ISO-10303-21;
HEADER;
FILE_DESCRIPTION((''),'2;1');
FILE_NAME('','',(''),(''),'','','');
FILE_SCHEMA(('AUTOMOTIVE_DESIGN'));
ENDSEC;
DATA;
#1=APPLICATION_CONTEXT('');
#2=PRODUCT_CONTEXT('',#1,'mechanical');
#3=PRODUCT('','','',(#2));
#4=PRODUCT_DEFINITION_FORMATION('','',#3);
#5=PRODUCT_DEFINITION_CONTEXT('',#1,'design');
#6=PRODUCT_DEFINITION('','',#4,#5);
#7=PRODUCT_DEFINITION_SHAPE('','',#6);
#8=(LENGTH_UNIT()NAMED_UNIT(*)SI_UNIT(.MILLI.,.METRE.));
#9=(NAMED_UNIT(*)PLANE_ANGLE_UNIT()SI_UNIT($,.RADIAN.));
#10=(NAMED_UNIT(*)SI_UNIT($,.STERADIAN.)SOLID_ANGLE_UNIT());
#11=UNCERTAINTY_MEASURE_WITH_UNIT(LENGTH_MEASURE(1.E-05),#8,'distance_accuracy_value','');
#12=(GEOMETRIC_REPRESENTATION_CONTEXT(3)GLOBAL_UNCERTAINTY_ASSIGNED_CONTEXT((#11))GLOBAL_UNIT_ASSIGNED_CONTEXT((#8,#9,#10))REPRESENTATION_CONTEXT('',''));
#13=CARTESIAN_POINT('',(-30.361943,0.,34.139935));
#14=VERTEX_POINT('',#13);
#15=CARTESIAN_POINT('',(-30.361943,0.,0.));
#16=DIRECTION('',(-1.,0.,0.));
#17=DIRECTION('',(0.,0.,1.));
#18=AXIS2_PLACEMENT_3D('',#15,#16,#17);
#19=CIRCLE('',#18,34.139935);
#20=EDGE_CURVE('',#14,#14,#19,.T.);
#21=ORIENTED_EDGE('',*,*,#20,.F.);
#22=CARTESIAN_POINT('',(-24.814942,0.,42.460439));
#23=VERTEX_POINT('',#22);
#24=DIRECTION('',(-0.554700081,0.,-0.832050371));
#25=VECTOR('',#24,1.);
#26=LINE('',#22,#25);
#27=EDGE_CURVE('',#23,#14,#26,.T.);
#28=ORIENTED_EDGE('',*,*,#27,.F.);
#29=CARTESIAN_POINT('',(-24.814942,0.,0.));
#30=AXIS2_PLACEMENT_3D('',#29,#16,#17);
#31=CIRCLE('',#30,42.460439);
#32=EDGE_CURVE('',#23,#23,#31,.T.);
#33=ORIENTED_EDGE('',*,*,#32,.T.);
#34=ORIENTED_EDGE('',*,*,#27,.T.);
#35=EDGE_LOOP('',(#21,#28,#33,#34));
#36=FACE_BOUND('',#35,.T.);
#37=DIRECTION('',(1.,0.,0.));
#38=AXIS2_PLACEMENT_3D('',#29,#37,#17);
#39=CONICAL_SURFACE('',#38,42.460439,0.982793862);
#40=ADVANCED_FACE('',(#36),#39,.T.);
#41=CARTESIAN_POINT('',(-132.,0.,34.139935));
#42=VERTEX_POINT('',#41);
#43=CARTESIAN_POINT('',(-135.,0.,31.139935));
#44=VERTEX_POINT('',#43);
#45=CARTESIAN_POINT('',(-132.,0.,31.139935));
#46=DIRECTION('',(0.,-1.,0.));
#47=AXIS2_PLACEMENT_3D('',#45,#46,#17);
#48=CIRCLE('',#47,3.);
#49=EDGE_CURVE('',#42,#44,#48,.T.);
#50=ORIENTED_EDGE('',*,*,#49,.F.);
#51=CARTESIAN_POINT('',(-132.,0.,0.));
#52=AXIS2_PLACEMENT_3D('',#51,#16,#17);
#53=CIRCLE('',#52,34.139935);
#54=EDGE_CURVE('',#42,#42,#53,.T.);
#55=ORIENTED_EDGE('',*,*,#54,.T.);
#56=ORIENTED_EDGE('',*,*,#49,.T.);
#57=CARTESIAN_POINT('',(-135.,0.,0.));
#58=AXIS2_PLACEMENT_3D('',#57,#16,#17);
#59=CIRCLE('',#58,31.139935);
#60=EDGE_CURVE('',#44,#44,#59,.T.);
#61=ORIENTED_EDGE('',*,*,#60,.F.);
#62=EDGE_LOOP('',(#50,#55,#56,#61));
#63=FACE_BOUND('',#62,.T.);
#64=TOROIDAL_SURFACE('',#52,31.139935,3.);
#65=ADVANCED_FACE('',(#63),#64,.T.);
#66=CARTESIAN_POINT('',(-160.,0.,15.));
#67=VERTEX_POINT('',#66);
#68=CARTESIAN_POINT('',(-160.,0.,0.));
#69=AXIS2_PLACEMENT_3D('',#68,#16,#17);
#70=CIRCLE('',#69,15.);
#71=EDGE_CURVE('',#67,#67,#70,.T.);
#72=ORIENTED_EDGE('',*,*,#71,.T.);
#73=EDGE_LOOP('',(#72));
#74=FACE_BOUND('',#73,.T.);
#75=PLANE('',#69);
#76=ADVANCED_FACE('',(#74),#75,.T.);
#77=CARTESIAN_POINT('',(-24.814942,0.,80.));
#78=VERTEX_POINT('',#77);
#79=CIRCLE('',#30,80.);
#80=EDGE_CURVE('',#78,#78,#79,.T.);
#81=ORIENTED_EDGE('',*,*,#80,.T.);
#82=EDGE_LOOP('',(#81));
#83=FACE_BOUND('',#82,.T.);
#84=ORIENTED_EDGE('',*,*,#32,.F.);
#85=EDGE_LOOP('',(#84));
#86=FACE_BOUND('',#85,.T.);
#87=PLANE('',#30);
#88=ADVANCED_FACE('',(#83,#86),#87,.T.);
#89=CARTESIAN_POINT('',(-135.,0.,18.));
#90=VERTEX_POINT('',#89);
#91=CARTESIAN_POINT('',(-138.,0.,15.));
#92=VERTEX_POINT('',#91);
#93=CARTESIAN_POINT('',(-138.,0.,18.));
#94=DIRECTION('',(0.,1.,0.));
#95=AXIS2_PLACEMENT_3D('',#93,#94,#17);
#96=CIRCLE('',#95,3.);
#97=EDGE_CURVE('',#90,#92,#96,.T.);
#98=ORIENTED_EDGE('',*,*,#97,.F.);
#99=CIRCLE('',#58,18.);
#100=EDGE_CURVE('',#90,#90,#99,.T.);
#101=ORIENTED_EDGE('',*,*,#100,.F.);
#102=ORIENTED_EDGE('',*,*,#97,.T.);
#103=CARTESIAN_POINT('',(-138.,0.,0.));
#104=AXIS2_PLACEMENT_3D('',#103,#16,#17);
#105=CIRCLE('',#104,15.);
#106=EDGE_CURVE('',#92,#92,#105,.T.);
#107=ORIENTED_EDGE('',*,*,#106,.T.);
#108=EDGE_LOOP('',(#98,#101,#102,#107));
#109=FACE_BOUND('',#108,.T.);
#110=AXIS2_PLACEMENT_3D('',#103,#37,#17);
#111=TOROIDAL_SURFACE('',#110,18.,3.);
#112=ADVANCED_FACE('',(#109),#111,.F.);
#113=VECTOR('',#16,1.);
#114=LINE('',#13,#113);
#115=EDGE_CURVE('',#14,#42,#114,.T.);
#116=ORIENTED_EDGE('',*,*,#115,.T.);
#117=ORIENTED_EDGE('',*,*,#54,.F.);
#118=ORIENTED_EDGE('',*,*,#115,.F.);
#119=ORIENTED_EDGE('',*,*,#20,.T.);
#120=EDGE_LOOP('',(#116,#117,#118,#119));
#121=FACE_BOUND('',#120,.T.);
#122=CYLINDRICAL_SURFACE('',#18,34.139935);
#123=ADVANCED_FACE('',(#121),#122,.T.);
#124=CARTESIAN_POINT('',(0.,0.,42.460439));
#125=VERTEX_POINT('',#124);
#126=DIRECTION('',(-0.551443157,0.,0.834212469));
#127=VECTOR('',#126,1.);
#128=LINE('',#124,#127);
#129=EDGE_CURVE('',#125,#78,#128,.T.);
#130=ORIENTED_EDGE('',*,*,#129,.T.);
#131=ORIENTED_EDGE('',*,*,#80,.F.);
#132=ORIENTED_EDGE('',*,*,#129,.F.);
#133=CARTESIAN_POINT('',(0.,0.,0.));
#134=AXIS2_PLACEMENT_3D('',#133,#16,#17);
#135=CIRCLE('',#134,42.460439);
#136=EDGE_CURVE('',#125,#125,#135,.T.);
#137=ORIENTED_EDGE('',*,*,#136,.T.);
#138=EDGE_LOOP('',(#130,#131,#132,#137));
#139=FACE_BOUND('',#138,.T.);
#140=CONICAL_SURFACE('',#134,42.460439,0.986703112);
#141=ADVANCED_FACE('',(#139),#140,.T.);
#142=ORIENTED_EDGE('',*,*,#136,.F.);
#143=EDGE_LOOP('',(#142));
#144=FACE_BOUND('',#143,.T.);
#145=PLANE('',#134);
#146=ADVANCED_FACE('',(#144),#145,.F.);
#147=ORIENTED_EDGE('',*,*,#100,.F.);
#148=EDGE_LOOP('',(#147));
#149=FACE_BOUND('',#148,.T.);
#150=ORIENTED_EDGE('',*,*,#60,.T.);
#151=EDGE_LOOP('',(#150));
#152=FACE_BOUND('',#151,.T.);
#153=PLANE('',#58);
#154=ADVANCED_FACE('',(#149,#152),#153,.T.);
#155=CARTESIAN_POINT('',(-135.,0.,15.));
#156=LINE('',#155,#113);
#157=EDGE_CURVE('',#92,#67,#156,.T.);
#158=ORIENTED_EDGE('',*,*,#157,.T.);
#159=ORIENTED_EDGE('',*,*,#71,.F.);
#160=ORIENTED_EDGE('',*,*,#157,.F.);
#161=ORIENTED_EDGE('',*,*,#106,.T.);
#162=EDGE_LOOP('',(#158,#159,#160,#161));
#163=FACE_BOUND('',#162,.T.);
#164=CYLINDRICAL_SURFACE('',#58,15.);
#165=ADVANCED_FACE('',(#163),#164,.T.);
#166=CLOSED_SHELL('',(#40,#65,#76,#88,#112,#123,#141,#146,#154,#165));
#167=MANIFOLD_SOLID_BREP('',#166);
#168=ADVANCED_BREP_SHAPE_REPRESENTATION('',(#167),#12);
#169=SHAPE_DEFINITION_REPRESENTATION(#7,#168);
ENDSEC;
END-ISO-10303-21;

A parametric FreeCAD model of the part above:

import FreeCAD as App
import Part
import Sketcher


def edges_at(feature, points):
    """Names of the edges that pass closest to the given points."""
    edges = feature.Shape.Edges
    near = lambda p: min(range(len(edges)), key=lambda i: edges[i].distToShape(Part.Vertex(*p))[0])
    return sorted({f"Edge{near(p) + 1}" for p in points})

doc = App.newDocument("Part")
params = doc.addObject("Spreadsheet::Sheet", "Params")
for row, (alias, value) in enumerate([
    ("sketch1_width", "160 mm"),
    ("sketch1_width2", "25 mm"),
    ("sketch1_height", "15 mm"),
    ("sketch1_length", "45 mm"),
    ("sketch1_length2", "10 mm"),
    ("revolution_angle", "360 deg"),
    ("fillet_radius", "3 mm"),
], start=1):
    params.set(f"A{row}", alias)
    params.set(f"B{row}", "=" + value)
    params.setAlias(f"B{row}", alias)

body = doc.addObject("PartDesign::Body", "Body")

# Sketch on XZ plane
sketch1 = doc.addObject("Sketcher::SketchObject", "Sketch")
body.addObject(sketch1)
sketch1.AttachmentSupport = (doc.XZ_Plane, [""])
sketch1.MapMode = "FlatFace"
sketch1.addGeometry([
    Part.LineSegment(App.Vector(-160, 15, 0), App.Vector(-160, 0, 0)),  # 0
    Part.LineSegment(App.Vector(-160, 0, 0), App.Vector(0, 0, 0)),  # 1
    Part.LineSegment(App.Vector(0, 0, 0), App.Vector(0, 42, 0)),  # 2
    Part.LineSegment(App.Vector(0, 42, 0), App.Vector(-25, 80, 0)),  # 3
    Part.LineSegment(App.Vector(-25, 80, 0), App.Vector(-25, 42, 0)),  # 4
    Part.LineSegment(App.Vector(-25, 42, 0), App.Vector(-30, 34, 0)),  # 5
    Part.LineSegment(App.Vector(-30, 34, 0), App.Vector(-135, 34, 0)),  # 6
    Part.LineSegment(App.Vector(-135, 34, 0), App.Vector(-135, 15, 0)),  # 7
    Part.LineSegment(App.Vector(-135, 15, 0), App.Vector(-160, 15, 0)),  # 8
], False)
sketch1.addConstraint([
    Sketcher.Constraint("Coincident", 0, 2, 1, 1),
    Sketcher.Constraint("Coincident", 1, 2, 2, 1),
    Sketcher.Constraint("Coincident", 2, 2, 3, 1),
    Sketcher.Constraint("Coincident", 3, 2, 4, 1),
    Sketcher.Constraint("Coincident", 4, 2, 5, 1),
    Sketcher.Constraint("Coincident", 5, 2, 6, 1),
    Sketcher.Constraint("Coincident", 6, 2, 7, 1),
    Sketcher.Constraint("Coincident", 7, 2, 8, 1),
    Sketcher.Constraint("Coincident", 8, 2, 0, 1),
    Sketcher.Constraint("Vertical", 0),
    Sketcher.Constraint("Horizontal", 1),
    Sketcher.Constraint("Vertical", 2),
    Sketcher.Constraint("Vertical", 4),
    Sketcher.Constraint("Horizontal", 6),
    Sketcher.Constraint("Vertical", 7),
    Sketcher.Constraint("Horizontal", 8),
    Sketcher.Constraint("Coincident", 1, 2, -1, 1),
    Sketcher.Constraint("Horizontal", 2, 2, 4, 2),
    Sketcher.Constraint("DistanceX", 1, 1, 1, 2, 160.0),
    Sketcher.Constraint("DistanceX", 8, 2, 8, 1, 25.0),
    Sketcher.Constraint("DistanceY", 0, 2, 0, 1, 15.0),
    Sketcher.Constraint("Distance", 3, 45.0),
    Sketcher.Constraint("Distance", 5, 10.0),
    Sketcher.Constraint("DistanceY", -1, 1, 3, 2, 80.0),
    Sketcher.Constraint("DistanceX", 5, 2, 4, 2, 5.547001),
    Sketcher.Constraint("DistanceY", 2, 1, 2, 2, 42.460439),
])
sketch1.setExpression("Constraints[18]", "Params.sketch1_width")
sketch1.setExpression("Constraints[19]", "Params.sketch1_width2")
sketch1.setExpression("Constraints[20]", "Params.sketch1_height")
sketch1.setExpression("Constraints[21]", "Params.sketch1_length")
sketch1.setExpression("Constraints[22]", "Params.sketch1_length2")
revolution = doc.addObject("PartDesign::Revolution", "Revolution")
body.addObject(revolution)
revolution.Profile = sketch1
revolution.ReferenceAxis = (sketch1, ["H_Axis"])
revolution.setExpression("Angle", "Params.revolution_angle")
doc.recompute()

fillet = doc.addObject("PartDesign::Fillet", "Fillet")
body.addObject(fillet)
fillet.Base = (revolution, edges_at(revolution, [(-135, 0, -34.14), (-135, 0, -15)]))
fillet.setExpression("Radius", "Params.fillet_radius")

doc.recompute()
